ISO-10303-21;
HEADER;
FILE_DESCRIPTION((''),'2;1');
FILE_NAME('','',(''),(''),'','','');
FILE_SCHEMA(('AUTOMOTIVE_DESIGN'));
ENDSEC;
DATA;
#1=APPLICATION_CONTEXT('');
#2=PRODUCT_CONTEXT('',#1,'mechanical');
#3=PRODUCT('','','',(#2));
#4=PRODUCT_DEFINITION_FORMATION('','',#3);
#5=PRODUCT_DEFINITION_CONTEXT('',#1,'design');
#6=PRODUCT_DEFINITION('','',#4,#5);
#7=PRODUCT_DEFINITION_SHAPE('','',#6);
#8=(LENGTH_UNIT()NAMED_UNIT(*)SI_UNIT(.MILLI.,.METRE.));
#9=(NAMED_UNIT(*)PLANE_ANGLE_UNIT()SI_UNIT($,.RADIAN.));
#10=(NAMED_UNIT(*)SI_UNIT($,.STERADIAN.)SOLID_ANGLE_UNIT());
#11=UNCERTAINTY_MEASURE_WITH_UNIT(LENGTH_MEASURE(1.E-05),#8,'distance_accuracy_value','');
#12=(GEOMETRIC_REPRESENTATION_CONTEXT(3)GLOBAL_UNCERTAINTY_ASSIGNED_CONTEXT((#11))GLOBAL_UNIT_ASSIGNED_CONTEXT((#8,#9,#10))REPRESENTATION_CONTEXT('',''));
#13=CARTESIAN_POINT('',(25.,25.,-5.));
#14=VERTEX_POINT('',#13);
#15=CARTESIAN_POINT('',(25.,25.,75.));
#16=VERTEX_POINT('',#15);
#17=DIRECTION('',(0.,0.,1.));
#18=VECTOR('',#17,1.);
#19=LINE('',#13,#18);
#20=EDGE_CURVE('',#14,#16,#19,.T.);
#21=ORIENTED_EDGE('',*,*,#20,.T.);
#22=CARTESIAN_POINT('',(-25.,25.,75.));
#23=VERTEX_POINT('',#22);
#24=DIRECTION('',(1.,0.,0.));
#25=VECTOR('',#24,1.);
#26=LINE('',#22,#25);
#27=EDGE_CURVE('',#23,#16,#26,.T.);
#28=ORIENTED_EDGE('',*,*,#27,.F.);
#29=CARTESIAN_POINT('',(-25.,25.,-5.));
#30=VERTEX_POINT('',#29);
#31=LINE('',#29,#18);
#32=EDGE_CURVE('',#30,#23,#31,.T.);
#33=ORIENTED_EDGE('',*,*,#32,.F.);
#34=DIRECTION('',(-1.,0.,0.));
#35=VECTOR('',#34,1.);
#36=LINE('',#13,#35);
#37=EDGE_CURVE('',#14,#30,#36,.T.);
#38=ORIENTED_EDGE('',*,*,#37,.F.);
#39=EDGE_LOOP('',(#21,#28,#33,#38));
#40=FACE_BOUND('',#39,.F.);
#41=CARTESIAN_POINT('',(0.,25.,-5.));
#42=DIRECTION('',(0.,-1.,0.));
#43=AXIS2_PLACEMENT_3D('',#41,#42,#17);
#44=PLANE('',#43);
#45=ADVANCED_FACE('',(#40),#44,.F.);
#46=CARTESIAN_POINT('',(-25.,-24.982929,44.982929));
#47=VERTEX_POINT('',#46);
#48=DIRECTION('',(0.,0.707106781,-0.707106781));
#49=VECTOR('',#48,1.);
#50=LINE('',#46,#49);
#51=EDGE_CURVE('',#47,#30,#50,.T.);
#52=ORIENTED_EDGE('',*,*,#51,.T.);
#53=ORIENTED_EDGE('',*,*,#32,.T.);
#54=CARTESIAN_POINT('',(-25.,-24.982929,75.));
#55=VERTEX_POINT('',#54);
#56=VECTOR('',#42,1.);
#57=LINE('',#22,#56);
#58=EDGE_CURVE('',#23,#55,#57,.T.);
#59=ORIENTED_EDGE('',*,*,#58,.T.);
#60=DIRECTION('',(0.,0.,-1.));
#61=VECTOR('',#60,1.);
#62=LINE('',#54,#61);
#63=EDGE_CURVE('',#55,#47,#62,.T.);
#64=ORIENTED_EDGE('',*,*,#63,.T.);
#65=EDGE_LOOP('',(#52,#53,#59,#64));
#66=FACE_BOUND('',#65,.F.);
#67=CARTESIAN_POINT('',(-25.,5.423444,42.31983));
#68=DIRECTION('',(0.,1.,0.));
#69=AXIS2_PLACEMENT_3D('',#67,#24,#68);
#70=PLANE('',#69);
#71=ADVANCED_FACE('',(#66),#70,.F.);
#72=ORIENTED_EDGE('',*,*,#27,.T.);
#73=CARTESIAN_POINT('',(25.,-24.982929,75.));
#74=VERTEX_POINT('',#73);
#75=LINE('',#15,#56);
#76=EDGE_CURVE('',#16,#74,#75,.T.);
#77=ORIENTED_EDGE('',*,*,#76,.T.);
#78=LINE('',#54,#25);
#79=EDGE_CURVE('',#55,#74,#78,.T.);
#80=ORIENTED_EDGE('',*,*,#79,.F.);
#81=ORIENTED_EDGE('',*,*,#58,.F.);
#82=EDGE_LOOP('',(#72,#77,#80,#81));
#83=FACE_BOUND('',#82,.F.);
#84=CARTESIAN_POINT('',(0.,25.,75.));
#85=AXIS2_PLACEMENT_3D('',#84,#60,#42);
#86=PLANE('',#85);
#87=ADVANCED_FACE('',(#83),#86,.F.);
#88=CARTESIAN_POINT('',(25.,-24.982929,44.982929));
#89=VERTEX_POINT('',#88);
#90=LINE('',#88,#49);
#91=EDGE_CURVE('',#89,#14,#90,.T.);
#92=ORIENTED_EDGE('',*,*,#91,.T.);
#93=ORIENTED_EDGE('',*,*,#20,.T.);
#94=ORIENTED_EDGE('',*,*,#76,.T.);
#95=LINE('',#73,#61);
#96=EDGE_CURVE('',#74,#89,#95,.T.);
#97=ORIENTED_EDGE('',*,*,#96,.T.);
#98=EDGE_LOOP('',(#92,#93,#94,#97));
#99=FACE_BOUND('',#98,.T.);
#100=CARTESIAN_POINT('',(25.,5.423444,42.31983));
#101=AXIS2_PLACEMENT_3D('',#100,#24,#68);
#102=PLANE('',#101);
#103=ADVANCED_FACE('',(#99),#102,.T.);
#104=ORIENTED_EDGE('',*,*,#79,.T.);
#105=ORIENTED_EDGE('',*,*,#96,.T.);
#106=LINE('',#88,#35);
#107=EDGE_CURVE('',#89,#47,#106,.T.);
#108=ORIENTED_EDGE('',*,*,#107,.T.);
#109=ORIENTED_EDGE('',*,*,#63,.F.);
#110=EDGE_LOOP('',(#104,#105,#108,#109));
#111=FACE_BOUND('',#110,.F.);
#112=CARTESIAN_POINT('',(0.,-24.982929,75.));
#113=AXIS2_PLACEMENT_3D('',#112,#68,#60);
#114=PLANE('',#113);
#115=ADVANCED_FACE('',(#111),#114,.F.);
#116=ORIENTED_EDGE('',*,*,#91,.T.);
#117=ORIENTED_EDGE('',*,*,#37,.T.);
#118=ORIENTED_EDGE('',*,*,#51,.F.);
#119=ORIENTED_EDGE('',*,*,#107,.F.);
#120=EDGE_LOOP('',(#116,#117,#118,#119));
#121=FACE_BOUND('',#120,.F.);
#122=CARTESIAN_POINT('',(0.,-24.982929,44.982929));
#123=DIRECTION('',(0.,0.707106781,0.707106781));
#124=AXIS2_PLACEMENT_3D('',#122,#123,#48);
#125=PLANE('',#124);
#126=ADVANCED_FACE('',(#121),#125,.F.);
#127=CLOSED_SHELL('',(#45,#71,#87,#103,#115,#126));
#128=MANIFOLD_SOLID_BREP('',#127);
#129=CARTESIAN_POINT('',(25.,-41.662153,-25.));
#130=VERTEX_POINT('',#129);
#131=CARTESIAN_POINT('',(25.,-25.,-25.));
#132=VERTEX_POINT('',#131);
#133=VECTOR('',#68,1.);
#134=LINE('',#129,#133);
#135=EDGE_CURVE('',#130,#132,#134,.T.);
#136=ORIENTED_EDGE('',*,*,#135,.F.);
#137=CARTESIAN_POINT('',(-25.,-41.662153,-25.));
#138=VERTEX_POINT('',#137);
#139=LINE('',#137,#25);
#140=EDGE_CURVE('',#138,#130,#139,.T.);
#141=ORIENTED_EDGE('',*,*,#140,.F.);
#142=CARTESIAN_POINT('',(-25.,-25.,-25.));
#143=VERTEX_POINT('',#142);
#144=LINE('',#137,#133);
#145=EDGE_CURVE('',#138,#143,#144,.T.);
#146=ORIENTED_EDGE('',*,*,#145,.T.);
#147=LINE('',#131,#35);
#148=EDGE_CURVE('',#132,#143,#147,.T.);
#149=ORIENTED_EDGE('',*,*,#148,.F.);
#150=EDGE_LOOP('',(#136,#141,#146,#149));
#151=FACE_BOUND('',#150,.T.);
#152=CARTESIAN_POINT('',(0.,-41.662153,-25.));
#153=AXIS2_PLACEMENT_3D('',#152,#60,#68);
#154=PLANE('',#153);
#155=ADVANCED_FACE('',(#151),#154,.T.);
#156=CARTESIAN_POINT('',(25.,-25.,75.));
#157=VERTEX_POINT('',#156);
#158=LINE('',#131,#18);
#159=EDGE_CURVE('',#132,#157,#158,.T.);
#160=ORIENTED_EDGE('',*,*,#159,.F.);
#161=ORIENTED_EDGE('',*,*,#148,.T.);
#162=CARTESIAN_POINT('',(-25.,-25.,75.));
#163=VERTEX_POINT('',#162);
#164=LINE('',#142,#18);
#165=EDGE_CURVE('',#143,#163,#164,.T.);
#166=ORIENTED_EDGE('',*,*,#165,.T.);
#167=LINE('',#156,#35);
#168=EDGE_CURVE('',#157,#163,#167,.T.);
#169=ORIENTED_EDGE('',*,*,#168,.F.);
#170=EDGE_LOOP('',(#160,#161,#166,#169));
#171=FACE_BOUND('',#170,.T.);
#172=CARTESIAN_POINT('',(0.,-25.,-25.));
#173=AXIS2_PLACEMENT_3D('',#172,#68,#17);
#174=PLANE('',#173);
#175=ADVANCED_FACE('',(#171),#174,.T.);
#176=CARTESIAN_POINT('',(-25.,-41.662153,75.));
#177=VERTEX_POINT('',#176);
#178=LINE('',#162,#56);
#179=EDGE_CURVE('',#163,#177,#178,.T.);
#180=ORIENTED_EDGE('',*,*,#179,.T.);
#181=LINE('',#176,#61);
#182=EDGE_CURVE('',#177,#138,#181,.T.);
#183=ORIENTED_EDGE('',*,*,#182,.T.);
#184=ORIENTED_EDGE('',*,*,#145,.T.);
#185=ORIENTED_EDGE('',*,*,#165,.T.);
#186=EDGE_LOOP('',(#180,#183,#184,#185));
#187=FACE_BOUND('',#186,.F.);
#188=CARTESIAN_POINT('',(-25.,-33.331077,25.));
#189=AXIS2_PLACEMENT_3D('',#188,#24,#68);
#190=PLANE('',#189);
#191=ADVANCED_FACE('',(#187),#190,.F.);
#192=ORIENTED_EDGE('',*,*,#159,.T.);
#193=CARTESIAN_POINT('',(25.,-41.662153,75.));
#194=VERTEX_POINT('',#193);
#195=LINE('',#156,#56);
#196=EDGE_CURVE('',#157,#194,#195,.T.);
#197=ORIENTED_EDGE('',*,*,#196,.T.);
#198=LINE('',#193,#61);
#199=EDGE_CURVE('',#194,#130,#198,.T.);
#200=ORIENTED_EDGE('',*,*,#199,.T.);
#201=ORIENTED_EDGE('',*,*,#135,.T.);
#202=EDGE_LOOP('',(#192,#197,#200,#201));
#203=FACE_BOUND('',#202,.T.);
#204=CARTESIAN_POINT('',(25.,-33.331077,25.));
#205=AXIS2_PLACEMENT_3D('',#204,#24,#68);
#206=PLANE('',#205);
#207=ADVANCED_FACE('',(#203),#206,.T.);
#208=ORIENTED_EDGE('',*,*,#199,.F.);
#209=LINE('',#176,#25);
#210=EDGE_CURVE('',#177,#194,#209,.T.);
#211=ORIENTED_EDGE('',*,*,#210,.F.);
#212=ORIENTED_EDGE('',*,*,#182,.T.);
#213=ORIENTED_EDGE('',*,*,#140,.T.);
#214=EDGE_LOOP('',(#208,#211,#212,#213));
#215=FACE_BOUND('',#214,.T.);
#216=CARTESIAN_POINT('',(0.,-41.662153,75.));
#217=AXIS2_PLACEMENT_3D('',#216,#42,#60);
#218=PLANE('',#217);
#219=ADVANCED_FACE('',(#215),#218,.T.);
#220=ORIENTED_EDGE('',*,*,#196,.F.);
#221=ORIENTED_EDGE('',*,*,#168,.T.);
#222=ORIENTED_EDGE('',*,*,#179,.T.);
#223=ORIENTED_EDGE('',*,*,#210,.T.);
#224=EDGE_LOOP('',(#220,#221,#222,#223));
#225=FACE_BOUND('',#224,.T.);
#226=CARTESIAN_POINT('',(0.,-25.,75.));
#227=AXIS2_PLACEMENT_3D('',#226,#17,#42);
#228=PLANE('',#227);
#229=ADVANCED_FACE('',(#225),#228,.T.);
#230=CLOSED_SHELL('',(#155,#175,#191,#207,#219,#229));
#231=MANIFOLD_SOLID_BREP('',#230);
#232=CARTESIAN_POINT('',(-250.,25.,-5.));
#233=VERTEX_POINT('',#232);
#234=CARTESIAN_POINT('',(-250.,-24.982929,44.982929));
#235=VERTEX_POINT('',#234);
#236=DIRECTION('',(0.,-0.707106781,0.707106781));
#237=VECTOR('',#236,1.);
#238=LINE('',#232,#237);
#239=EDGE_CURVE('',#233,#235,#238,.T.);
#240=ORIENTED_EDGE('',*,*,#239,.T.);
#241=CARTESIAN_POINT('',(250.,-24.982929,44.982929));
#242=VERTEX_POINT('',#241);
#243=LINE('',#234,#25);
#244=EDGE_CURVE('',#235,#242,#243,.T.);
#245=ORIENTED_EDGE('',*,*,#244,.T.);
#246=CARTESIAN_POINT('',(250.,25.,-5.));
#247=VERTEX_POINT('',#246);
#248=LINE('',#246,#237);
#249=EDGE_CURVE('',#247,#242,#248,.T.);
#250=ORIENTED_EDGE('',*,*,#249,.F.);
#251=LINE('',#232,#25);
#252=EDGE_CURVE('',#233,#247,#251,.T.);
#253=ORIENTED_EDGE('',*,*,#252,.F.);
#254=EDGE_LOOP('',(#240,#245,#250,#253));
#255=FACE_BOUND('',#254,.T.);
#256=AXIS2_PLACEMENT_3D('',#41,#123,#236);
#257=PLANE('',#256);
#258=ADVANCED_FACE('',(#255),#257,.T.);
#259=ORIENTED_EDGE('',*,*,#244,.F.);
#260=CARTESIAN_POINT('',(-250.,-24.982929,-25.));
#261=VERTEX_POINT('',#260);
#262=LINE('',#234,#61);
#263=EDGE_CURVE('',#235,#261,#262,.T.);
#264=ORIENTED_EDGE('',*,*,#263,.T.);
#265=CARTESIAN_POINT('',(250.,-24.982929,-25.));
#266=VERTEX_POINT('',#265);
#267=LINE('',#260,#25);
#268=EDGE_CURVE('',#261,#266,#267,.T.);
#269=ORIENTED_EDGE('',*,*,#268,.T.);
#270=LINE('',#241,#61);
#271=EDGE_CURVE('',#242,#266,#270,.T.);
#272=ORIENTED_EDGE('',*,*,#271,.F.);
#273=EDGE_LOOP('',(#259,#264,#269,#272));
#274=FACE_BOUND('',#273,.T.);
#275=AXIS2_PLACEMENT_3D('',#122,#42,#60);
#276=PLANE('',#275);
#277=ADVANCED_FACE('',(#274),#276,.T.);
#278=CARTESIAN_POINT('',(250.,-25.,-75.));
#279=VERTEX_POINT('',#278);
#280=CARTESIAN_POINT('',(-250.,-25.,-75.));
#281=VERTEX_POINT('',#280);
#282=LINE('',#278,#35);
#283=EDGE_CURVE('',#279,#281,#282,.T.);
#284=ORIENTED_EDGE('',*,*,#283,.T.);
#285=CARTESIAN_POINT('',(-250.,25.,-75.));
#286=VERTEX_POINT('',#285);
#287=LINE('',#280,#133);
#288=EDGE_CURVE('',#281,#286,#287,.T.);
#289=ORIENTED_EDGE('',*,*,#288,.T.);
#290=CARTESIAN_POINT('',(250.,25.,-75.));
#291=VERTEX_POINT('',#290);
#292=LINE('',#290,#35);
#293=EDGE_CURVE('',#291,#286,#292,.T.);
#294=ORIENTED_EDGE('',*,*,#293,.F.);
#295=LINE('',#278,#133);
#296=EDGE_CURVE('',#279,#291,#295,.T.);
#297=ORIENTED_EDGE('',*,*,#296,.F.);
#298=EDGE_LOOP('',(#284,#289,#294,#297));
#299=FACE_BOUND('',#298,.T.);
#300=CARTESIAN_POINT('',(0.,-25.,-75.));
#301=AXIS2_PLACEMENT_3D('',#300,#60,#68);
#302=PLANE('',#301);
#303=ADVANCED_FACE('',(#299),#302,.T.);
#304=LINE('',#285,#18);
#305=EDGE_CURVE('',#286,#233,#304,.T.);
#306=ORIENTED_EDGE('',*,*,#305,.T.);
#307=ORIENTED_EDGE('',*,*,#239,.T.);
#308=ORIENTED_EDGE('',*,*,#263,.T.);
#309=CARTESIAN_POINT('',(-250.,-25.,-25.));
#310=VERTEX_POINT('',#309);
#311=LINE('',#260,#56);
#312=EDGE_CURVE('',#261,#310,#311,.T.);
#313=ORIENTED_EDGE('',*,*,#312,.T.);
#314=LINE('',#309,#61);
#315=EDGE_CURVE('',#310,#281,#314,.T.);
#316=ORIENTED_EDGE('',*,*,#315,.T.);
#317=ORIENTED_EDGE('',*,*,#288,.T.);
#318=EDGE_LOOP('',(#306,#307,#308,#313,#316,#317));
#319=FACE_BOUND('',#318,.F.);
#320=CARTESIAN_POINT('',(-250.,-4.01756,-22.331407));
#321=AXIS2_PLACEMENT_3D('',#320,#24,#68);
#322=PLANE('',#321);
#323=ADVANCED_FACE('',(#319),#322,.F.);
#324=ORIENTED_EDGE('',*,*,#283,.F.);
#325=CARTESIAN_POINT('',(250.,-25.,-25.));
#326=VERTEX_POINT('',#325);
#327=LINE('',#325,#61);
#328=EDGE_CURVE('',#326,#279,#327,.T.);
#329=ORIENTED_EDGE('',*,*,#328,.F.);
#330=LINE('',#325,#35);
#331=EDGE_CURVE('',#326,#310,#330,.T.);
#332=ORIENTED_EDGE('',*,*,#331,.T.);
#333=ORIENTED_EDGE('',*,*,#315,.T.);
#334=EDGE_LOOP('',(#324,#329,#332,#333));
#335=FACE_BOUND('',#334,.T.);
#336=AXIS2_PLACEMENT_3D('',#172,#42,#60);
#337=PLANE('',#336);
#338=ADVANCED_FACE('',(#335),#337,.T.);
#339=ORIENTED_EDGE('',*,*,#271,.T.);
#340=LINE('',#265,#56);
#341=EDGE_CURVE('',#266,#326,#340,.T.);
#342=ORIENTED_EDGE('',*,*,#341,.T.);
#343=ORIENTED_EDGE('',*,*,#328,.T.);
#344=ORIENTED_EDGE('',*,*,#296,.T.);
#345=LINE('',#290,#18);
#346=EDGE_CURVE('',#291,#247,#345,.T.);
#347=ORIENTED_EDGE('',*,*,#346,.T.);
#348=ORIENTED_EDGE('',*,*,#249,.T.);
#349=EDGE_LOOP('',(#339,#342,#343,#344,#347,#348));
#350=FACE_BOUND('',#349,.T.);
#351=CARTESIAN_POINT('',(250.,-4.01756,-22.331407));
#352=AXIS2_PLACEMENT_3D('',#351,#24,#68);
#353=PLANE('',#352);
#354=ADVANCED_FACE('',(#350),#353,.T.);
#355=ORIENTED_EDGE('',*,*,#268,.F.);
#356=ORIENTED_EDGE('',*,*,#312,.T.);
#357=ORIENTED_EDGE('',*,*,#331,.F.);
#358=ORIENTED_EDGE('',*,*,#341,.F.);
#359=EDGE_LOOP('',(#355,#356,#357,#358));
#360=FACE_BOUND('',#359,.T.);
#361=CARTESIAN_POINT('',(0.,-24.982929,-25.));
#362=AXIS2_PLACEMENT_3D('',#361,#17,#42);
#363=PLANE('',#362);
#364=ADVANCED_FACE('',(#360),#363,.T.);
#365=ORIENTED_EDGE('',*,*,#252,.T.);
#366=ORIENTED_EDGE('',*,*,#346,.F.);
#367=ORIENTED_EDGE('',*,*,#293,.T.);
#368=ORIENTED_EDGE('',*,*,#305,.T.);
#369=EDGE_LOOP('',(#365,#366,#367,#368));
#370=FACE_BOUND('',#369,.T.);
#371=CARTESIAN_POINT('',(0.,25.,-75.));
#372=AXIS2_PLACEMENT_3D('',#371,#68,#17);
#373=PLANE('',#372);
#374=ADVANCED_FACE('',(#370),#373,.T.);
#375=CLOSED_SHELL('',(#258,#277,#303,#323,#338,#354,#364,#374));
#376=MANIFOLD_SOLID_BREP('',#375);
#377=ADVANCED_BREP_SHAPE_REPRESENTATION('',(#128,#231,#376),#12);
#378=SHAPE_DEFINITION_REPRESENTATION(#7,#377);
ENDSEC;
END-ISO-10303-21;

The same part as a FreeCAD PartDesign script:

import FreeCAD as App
import Part
import Sketcher
Q = App.Units.Quantity

doc = App.newDocument("Part")
params = doc.addObject("Spreadsheet::Sheet", "Params")
for row, (alias, value) in enumerate([
    ("sketch1_width", "50 mm"),
    ("sketch1_height", "70 mm"),
    ("pad1_length", "500 mm"),
    ("sketch2_height", "80 mm"),
    ("sketch2_height2", "100 mm"),
    ("pad2_length", "50 mm"),
], start=1):
    params.set(f"A{row}", alias)
    params.set(f"B{row}", "=" + value)
    params.setAlias(f"B{row}", alias)

body = doc.addObject("PartDesign::Body", "Body")

# Sketch on YZ plane
sketch1 = body.newObject("Sketcher::SketchObject", "Sketch")
sketch1.AttachmentSupport = (doc.getObject("YZ_Plane"), [""])
sketch1.MapMode = "FlatFace"
sketch1.addGeometry(Part.LineSegment(App.Vector(25, -75, 0), App.Vector(25, -5, 0)), False)
sketch1.addGeometry(Part.LineSegment(App.Vector(25, -5, 0), App.Vector(-24.983, 44.983, 0)), False)
sketch1.addGeometry(Part.LineSegment(App.Vector(-24.983, 44.983, 0), App.Vector(-24.983, -25, 0)), False)
sketch1.addGeometry(Part.LineSegment(App.Vector(-24.983, -25, 0), App.Vector(-25, -25, 0)), False)
sketch1.addGeometry(Part.LineSegment(App.Vector(-25, -25, 0), App.Vector(-25, -75, 0)), False)
sketch1.addGeometry(Part.LineSegment(App.Vector(-25, -75, 0), App.Vector(25, -75, 0)), False)
sketch1.addConstraint(Sketcher.Constraint("Coincident", 0, 2, 1, 1))
sketch1.addConstraint(Sketcher.Constraint("Coincident", 1, 2, 2, 1))
sketch1.addConstraint(Sketcher.Constraint("Coincident", 2, 2, 3, 1))
sketch1.addConstraint(Sketcher.Constraint("Coincident", 3, 2, 4, 1))
sketch1.addConstraint(Sketcher.Constraint("Coincident", 4, 2, 5, 1))
sketch1.addConstraint(Sketcher.Constraint("Coincident", 5, 2, 0, 1))
sketch1.addConstraint(Sketcher.Constraint("Vertical", 0))
sketch1.addConstraint(Sketcher.Constraint("Vertical", 2))
sketch1.addConstraint(Sketcher.Constraint("Horizontal", 3))
sketch1.addConstraint(Sketcher.Constraint("Vertical", 4))
sketch1.addConstraint(Sketcher.Constraint("Horizontal", 5))
sketch1.addConstraint(Sketcher.Constraint("Equal", 5, 4))
sketch1.addConstraint(Sketcher.Constraint("DistanceX", 5, 1, 5, 2, Q("50 mm")))
sketch1.addConstraint(Sketcher.Constraint("DistanceY", 0, 1, 0, 2, Q("70 mm")))
sketch1.addConstraint(Sketcher.Constraint("Angle", 1, Q("135 deg")))
sketch1.addConstraint(Sketcher.Constraint("DistanceX", -1, 1, 0, 2, Q("25 mm")))
sketch1.addConstraint(Sketcher.Constraint("DistanceY", 0, 2, -1, 1, Q("5 mm")))
sketch1.addConstraint(Sketcher.Constraint("DistanceX", 3, 2, 3, 1, Q("0.017071 mm")))
sketch1.setExpression("Constraints[12]", "Params.sketch1_width")
sketch1.setExpression("Constraints[13]", "Params.sketch1_height")
pad1 = body.newObject("PartDesign::Pad", "Pad")
pad1.Profile = sketch1
pad1.setExpression("Length", "Params.pad1_length")
pad1.Midplane = True
body2 = doc.addObject("PartDesign::Body", "Body001")
body2.AllowCompound = True

# Sketch on YZ plane
sketch2 = body2.newObject("Sketcher::SketchObject", "Sketch001")
sketch2.AttachmentSupport = (doc.getObject("YZ_Plane001"), [""])
sketch2.MapMode = "FlatFace"
sketch2.addGeometry(Part.LineSegment(App.Vector(25, -5, 0), App.Vector(25, 75, 0)), False)
sketch2.addGeometry(Part.LineSegment(App.Vector(25, 75, 0), App.Vector(-25, 75, 0)), False)
sketch2.addGeometry(Part.LineSegment(App.Vector(-25, 75, 0), App.Vector(-25, 45, 0)), False)
sketch2.addGeometry(Part.LineSegment(App.Vector(-25, 45, 0), App.Vector(25, -5, 0)), False)
sketch2.addGeometry(Part.LineSegment(App.Vector(-25, 75, 0), App.Vector(-42, 75, 0)), False)
sketch2.addGeometry(Part.LineSegment(App.Vector(-42, 75, 0), App.Vector(-42, -25, 0)), False)
sketch2.addGeometry(Part.LineSegment(App.Vector(-42, -25, 0), App.Vector(-25, -25, 0)), False)
sketch2.addGeometry(Part.LineSegment(App.Vector(-25, -25, 0), App.Vector(-25, 75, 0)), False)
sketch2.addConstraint(Sketcher.Constraint("Coincident", 0, 2, 1, 1))
sketch2.addConstraint(Sketcher.Constraint("Coincident", 1, 2, 2, 1))
sketch2.addConstraint(Sketcher.Constraint("Coincident", 2, 2, 3, 1))
sketch2.addConstraint(Sketcher.Constraint("Coincident", 3, 2, 0, 1))
sketch2.addConstraint(Sketcher.Constraint("Coincident", 4, 2, 5, 1))
sketch2.addConstraint(Sketcher.Constraint("Coincident", 5, 2, 6, 1))
sketch2.addConstraint(Sketcher.Constraint("Coincident", 6, 2, 7, 1))
sketch2.addConstraint(Sketcher.Constraint("Coincident", 7, 2, 4, 1))
sketch2.addConstraint(Sketcher.Constraint("Vertical", 0))
sketch2.addConstraint(Sketcher.Constraint("Horizontal", 1))
sketch2.addConstraint(Sketcher.Constraint("Vertical", 2))
sketch2.addConstraint(Sketcher.Constraint("Horizontal", 4))
sketch2.addConstraint(Sketcher.Constraint("Vertical", 5))
sketch2.addConstraint(Sketcher.Constraint("Horizontal", 6))
sketch2.addConstraint(Sketcher.Constraint("Vertical", 7))
sketch2.addConstraint(Sketcher.Constraint("Symmetric", 0, 2, 7, 2, -2))
sketch2.addConstraint(Sketcher.Constraint("DistanceY", 0, 1, 0, 2, Q("80 mm")))
sketch2.addConstraint(Sketcher.Constraint("DistanceY", 5, 2, 5, 1, Q("100 mm")))
sketch2.addConstraint(Sketcher.Constraint("Angle", 3, Q("-45 deg")))
sketch2.addConstraint(Sketcher.Constraint("DistanceX", -1, 1, 0, 2, Q("25 mm")))
sketch2.addConstraint(Sketcher.Constraint("DistanceY", -1, 1, 0, 2, Q("75 mm")))
sketch2.addConstraint(Sketcher.Constraint("DistanceX", 1, 2, 1, 1, Q("49.982929 mm")))
sketch2.addConstraint(Sketcher.Constraint("DistanceX", 4, 2, 4, 1, Q("16.662153 mm")))
sketch2.setExpression("Constraints[16]", "Params.sketch2_height")
sketch2.setExpression("Constraints[17]", "Params.sketch2_height2")
pad2 = body2.newObject("PartDesign::Pad", "Pad001")
pad2.Profile = sketch2
pad2.setExpression("Length", "Params.pad2_length")
pad2.Midplane = True

doc.recompute()
